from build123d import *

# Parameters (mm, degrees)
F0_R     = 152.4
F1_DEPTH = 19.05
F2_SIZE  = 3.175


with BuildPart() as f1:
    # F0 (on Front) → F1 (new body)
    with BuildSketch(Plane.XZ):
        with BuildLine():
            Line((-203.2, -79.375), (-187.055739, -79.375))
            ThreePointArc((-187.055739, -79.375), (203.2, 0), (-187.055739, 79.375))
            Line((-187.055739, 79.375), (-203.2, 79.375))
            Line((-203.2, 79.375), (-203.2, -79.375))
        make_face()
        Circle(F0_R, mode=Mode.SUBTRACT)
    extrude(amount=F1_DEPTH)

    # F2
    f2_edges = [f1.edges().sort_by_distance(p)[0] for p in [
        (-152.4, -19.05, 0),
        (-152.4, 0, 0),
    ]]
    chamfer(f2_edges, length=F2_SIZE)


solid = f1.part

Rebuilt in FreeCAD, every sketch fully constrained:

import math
import FreeCAD as App
import Part
import Sketcher
from FreeCAD import Vector
Q = App.Units.Quantity


def edges_at(feature, points):
    """Names of the edges that pass closest to the given points."""
    edges = feature.Shape.Edges
    near = lambda p: min(range(len(edges)), key=lambda i: edges[i].distToShape(Part.Vertex(*p))[0])
    return sorted({f"Edge{near(p) + 1}" for p in points})

doc = App.newDocument("Part")
params = doc.addObject("Spreadsheet::Sheet", "Params")
for row, (alias, value) in enumerate([
    ("sketch1_diameter", "12 in"),
    ("sketch1_radius", "8 in"),
    ("sketch1_height", "6.25 in"),
    ("pad1_length", "0.75 in"),
    ("chamfer_size", "0.125 in"),
], start=1):
    params.set(f"A{row}", alias)
    params.set(f"B{row}", "=" + value)
    params.setAlias(f"B{row}", alias)

body = doc.addObject("PartDesign::Body", "Body")

sketch1 = body.newObject("Sketcher::SketchObject", "Sketch")
sketch1.AttachmentSupport = (doc.getObject("XZ_Plane"), [""])
sketch1.MapMode = "FlatFace"
sketch1.addGeometry([
    Part.LineSegment(Vector(-203.2, -79.375, 0), Vector(-187.055739, -79.375, 0)),
    Part.ArcOfCircle(Part.Circle(Vector(0, 0, 0), Vector(0, 0, 1), 203.2), math.radians(-157.006606), math.radians(157.006606)),
    Part.LineSegment(Vector(-187.055739, 79.375, 0), Vector(-203.2, 79.375, 0)),
    Part.LineSegment(Vector(-203.2, 79.375, 0), Vector(-203.2, -79.375, 0)),
    Part.Circle(Vector(0, 0, 0), Vector(0, 0, 1), 152.4),
], False)
sketch1.addConstraint([
    Sketcher.Constraint("Coincident", 0, 2, 1, 1),
    Sketcher.Constraint("Coincident", 1, 2, 2, 1),
    Sketcher.Constraint("Coincident", 2, 2, 3, 1),
    Sketcher.Constraint("Coincident", 3, 2, 0, 1),
    Sketcher.Constraint("Horizontal", 0),
    Sketcher.Constraint("Horizontal", 2),
    Sketcher.Constraint("Vertical", 3),
    Sketcher.Constraint("Coincident", 1, 3, -1, 1),
    Sketcher.Constraint("Coincident", 4, 3, -1, 1),
    Sketcher.Constraint("Vertical", 0, 2, 1, 2),
    Sketcher.Constraint("Diameter", 4, Q("12 in")),
    Sketcher.Constraint("Radius", 1, Q("8 in")),
    Sketcher.Constraint("DistanceX", 2, 2, -1, 1, Q("8 in")),
    Sketcher.Constraint("DistanceY", 3, 2, 3, 1, Q("6.25 in")),
])
sketch1.setExpression("Constraints[10]", "Params.sketch1_diameter")
sketch1.setExpression("Constraints[11]", "Params.sketch1_radius")
sketch1.setExpression("Constraints[13]", "Params.sketch1_height")
pad1 = body.newObject("PartDesign::Pad", "Pad")
pad1.Profile = sketch1
pad1.setExpression("Length", "Params.pad1_length")
doc.recompute()

chamfer = body.newObject("PartDesign::Chamfer", "Chamfer")
chamfer.Base = (pad1, edges_at(pad1, [(-152.4, -19.05, 0), (-152.4, 0, 0)]))
chamfer.setExpression("Size", "Params.chamfer_size")

doc.recompute()
